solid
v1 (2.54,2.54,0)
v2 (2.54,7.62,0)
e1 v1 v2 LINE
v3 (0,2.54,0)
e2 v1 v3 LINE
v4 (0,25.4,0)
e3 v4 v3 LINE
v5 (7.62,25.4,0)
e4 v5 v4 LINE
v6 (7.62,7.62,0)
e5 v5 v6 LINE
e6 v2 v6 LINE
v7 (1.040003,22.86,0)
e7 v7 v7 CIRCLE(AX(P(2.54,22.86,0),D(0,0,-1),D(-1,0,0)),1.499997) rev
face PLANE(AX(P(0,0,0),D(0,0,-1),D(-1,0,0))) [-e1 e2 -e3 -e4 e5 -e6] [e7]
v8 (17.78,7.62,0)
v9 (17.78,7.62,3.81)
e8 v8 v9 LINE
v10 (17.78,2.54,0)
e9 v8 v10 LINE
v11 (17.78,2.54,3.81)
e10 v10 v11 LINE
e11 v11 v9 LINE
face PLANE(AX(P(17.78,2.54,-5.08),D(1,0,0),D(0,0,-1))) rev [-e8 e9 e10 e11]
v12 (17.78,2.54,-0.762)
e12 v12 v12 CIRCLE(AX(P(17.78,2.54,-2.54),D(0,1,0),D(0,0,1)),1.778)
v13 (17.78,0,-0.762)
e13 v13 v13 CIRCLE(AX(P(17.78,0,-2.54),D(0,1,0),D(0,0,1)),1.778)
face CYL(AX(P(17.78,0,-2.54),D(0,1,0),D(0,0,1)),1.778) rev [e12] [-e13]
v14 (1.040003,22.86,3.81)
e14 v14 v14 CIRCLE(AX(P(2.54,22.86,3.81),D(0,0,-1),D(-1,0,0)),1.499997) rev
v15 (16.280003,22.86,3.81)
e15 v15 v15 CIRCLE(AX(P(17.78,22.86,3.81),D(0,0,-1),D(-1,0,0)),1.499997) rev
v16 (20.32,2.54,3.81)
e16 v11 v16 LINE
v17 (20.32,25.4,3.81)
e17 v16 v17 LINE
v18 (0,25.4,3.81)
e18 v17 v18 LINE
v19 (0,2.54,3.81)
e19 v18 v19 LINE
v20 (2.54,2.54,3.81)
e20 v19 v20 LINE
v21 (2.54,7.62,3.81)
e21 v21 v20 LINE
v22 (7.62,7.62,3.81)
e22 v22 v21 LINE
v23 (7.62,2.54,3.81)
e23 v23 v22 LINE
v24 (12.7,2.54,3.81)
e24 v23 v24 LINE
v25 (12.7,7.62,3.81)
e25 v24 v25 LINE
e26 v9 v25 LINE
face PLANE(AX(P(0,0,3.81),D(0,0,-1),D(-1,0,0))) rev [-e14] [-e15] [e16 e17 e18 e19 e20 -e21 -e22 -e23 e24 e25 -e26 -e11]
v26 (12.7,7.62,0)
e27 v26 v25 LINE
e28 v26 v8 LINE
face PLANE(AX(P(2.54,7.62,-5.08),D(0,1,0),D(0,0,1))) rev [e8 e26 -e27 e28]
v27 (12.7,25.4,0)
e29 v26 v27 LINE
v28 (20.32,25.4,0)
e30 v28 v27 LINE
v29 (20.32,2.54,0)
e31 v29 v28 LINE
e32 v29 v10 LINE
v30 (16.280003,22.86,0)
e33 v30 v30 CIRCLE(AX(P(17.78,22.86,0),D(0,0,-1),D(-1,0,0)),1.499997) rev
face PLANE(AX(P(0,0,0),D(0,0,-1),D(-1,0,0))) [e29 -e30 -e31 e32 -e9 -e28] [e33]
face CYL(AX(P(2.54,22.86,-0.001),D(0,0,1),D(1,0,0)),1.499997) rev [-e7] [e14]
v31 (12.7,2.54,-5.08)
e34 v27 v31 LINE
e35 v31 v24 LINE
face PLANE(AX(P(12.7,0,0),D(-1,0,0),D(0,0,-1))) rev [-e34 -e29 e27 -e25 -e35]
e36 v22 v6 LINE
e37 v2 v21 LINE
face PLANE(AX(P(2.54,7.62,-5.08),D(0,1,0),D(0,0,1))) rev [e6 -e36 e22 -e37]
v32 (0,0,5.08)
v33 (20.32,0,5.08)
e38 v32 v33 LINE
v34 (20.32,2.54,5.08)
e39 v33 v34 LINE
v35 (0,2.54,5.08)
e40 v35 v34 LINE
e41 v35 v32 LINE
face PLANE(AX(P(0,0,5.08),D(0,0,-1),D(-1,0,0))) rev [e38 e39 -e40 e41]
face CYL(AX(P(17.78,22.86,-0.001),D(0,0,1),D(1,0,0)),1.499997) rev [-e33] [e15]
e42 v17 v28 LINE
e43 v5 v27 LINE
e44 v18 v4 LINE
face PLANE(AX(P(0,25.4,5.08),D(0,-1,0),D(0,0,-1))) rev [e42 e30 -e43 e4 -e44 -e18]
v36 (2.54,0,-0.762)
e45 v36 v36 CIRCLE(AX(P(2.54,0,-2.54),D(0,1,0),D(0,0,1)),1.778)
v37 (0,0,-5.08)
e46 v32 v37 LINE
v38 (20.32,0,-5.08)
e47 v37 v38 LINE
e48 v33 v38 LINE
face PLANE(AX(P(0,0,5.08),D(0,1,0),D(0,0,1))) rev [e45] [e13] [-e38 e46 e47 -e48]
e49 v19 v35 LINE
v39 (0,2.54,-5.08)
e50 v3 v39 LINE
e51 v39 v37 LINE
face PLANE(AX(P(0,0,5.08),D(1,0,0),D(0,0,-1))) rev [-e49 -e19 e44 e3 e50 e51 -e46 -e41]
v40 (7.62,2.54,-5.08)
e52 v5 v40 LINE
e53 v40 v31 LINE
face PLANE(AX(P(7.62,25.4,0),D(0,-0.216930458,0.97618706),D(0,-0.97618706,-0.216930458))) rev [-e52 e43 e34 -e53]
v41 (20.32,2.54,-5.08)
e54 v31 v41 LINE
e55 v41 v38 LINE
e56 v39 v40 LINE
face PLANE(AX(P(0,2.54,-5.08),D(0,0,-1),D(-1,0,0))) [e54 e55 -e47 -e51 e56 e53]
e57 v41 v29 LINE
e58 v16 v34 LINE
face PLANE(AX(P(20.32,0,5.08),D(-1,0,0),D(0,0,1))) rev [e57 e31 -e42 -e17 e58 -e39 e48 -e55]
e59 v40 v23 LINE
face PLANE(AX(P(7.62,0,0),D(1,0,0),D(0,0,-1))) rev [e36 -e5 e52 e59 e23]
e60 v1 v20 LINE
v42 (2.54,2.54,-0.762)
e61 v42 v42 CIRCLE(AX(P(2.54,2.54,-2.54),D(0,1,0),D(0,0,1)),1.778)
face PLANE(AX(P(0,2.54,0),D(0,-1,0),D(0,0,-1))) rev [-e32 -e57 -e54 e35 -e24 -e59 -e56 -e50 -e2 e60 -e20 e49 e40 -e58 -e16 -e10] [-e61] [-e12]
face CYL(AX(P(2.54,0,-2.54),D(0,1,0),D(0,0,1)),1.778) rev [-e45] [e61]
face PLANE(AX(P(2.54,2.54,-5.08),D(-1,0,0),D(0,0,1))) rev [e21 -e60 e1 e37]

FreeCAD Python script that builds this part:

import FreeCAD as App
import Part
import Sketcher
Q = App.Units.Quantity

doc = App.newDocument("Part")
body = doc.addObject("PartDesign::Body", "Body")

sketch1 = doc.addObject("Sketcher::SketchObject", "Sketch")
body.addObject(sketch1)
sketch1.AttachmentSupport = (doc.XY_Plane, [""])
sketch1.MapMode = "FlatFace"
sketch1.addGeometry(Part.LineSegment(App.Vector(0, 25, 0), App.Vector(0, 0, 0)), False)
sketch1.addGeometry(Part.LineSegment(App.Vector(0, 0, 0), App.Vector(20, 0, 0)), False)
sketch1.addGeometry(Part.LineSegment(App.Vector(20, 0, 0), App.Vector(20, 25, 0)), False)
sketch1.addGeometry(Part.LineSegment(App.Vector(20, 25, 0), App.Vector(0, 25, 0)), False)
sketch1.addConstraint(Sketcher.Constraint("Coincident", 0, 2, 1, 1))
sketch1.addConstraint(Sketcher.Constraint("Coincident", 1, 2, 2, 1))
sketch1.addConstraint(Sketcher.Constraint("Coincident", 2, 2, 3, 1))
sketch1.addConstraint(Sketcher.Constraint("Coincident", 3, 2, 0, 1))
sketch1.addConstraint(Sketcher.Constraint("Vertical", 0))
sketch1.addConstraint(Sketcher.Constraint("Horizontal", 1))
sketch1.addConstraint(Sketcher.Constraint("Vertical", 2))
sketch1.addConstraint(Sketcher.Constraint("Horizontal", 3))
sketch1.addConstraint(Sketcher.Constraint("Coincident", 0, 2, -1, 1))
sketch1.addConstraint(Sketcher.Constraint("DistanceY", 0, 2, 0, 1, Q("1 in")))
sketch1.addConstraint(Sketcher.Constraint("DistanceX", 1, 1, 1, 2, Q("0.8 in")))
pad1 = doc.addObject("PartDesign::Pad", "Pad")
body.addObject(pad1)
pad1.Profile = sketch1
pad1.Length = Q("0.2 in")

sketch2 = doc.addObject("Sketcher::SketchObject", "Sketch001")
body.addObject(sketch2)
sketch2.AttachmentSupport = (doc.XY_Plane, [""])
sketch2.MapMode = "FlatFace"
sketch2.AttachmentOffset = App.Placement(App.Vector(0, 0, 0.2 * 25.4), App.Rotation())
sketch2.addGeometry(Part.Circle(App.Vector(2.5, 22.9, 0), App.Vector(0, 0, 1), 1.5), False)
sketch2.addConstraint(Sketcher.Constraint("DistanceX", -1, 1, 0, 3, Q("0.1 in")))
sketch2.addConstraint(Sketcher.Constraint("DistanceY", -1, 1, 0, 3, Q("0.9 in")))
sketch2.addConstraint(Sketcher.Constraint("Diameter", 0, 2.999994))
pocket1 = doc.addObject("PartDesign::Pocket", "Pocket")
body.addObject(pocket1)
pocket1.Profile = sketch2
pocket1.Type = "UpToFirst"

sketch3 = doc.addObject("Sketcher::SketchObject", "Sketch002")
body.addObject(sketch3)
sketch3.AttachmentSupport = (doc.XY_Plane, [""])
sketch3.MapMode = "FlatFace"
sketch3.AttachmentOffset = App.Placement(App.Vector(0, 0, 0.2 * 25.4), App.Rotation())
sketch3.addGeometry(Part.Circle(App.Vector(17.8, 22.9, 0), App.Vector(0, 0, 1), 1.5), False)
sketch3.addConstraint(Sketcher.Constraint("DistanceX", -1, 1, 0, 3, Q("0.7 in")))
sketch3.addConstraint(Sketcher.Constraint("DistanceY", -1, 1, 0, 3, Q("0.9 in")))
sketch3.addConstraint(Sketcher.Constraint("Diameter", 0, 2.999994))
pocket2 = doc.addObject("PartDesign::Pocket", "Pocket001")
body.addObject(pocket2)
pocket2.Profile = sketch3
pocket2.Type = "UpToFirst"

sketch4 = doc.addObject("Sketcher::SketchObject", "Sketch003")
body.addObject(sketch4)
sketch4.AttachmentSupport = (doc.XZ_Plane, [""])
sketch4.MapMode = "FlatFace"
sketch4.addGeometry(Part.LineSegment(App.Vector(0, 5, 0), App.Vector(0, -5, 0)), False)
sketch4.addGeometry(Part.LineSegment(App.Vector(0, -5, 0), App.Vector(20, -5, 0)), False)
sketch4.addGeometry(Part.LineSegment(App.Vector(20, -5, 0), App.Vector(20, 5, 0)), False)
sketch4.addGeometry(Part.LineSegment(App.Vector(20, 5, 0), App.Vector(0, 5, 0)), False)
sketch4.addConstraint(Sketcher.Constraint("Coincident", 0, 2, 1, 1))
sketch4.addConstraint(Sketcher.Constraint("Coincident", 1, 2, 2, 1))
sketch4.addConstraint(Sketcher.Constraint("Coincident", 2, 2, 3, 1))
sketch4.addConstraint(Sketcher.Constraint("Coincident", 3, 2, 0, 1))
sketch4.addConstraint(Sketcher.Constraint("Vertical", 0))
sketch4.addConstraint(Sketcher.Constraint("Horizontal", 1))
sketch4.addConstraint(Sketcher.Constraint("Vertical", 2))
sketch4.addConstraint(Sketcher.Constraint("Horizontal", 3))
sketch4.addConstraint(Sketcher.Constraint("Symmetric", 0, 2, 3, 2, -1, 1))
sketch4.addConstraint(Sketcher.Constraint("DistanceX", 1, 1, 1, 2, Q("0.8 in")))
sketch4.addConstraint(Sketcher.Constraint("DistanceY", 0, 2, 0, 1, Q("0.4 in")))
pad2 = doc.addObject("PartDesign::Pad", "Pad001")
body.addObject(pad2)
pad2.Profile = sketch4
pad2.Length = Q("0.1 in")
pad2.Reversed = True

sketch5 = doc.addObject("Sketcher::SketchObject", "Sketch004")
body.addObject(sketch5)
sketch5.AttachmentSupport = (doc.XY_Plane, [""])
sketch5.MapMode = "FlatFace"
sketch5.AttachmentOffset = App.Placement(App.Vector(0, 0, 0.2 * 25.4), App.Rotation())
sketch5.addGeometry(Part.LineSegment(App.Vector(0, 25, 0), App.Vector(0, 3, 0)), False)
sketch5.addGeometry(Part.LineSegment(App.Vector(0, 3, 0), App.Vector(20, 3, 0)), False)
sketch5.addGeometry(Part.LineSegment(App.Vector(20, 3, 0), App.Vector(20, 25, 0)), False)
sketch5.addGeometry(Part.LineSegment(App.Vector(20, 25, 0), App.Vector(0, 25, 0)), False)
sketch5.addConstraint(Sketcher.Constraint("Coincident", 0, 2, 1, 1))
sketch5.addConstraint(Sketcher.Constraint("Coincident", 1, 2, 2, 1))
sketch5.addConstraint(Sketcher.Constraint("Coincident", 2, 2, 3, 1))
sketch5.addConstraint(Sketcher.Constraint("Coincident", 3, 2, 0, 1))
sketch5.addConstraint(Sketcher.Constraint("Vertical", 0))
sketch5.addConstraint(Sketcher.Constraint("Horizontal", 1))
sketch5.addConstraint(Sketcher.Constraint("Vertical", 2))
sketch5.addConstraint(Sketcher.Constraint("Horizontal", 3))
sketch5.addConstraint(Sketcher.Constraint("PointOnObject", 0, 2, -2))
sketch5.addConstraint(Sketcher.Constraint("DistanceX", 1, 1, 1, 2, Q("0.8 in")))
sketch5.addConstraint(Sketcher.Constraint("DistanceY", 0, 2, 0, 1, Q("0.9 in")))
sketch5.addConstraint(Sketcher.Constraint("DistanceY", -1, 1, 2, 2, Q("1 in")))
pocket3 = doc.addObject("PartDesign::Pocket", "Pocket002")
body.addObject(pocket3)
pocket3.Profile = sketch5
pocket3.Length = Q("0.05 in")

sketch6 = doc.addObject("Sketcher::SketchObject", "Sketch005")
body.addObject(sketch6)
sketch6.AttachmentSupport = (doc.XZ_Plane, [""])
sketch6.MapMode = "FlatFace"
sketch6.AttachmentOffset = App.Placement(App.Vector(0, 0, -0.1 * 25.4), App.Rotation())
sketch6.addGeometry(Part.Circle(App.Vector(17.8, -2.5, 0), App.Vector(0, 0, 1), 1.8), False)
sketch6.addGeometry(Part.Circle(App.Vector(2.5, -2.5, 0), App.Vector(0, 0, 1), 1.8), False)
sketch6.addConstraint(Sketcher.Constraint("Equal", 0, 1))
sketch6.addConstraint(Sketcher.Constraint("Horizontal", 0, 3, 1, 3))
sketch6.addConstraint(Sketcher.Constraint("Diameter", 0, Q("0.14 in")))
sketch6.addConstraint(Sketcher.Constraint("DistanceX", -1, 1, 0, 3, Q("0.7 in")))
sketch6.addConstraint(Sketcher.Constraint("DistanceY", 0, 3, -1, 1, Q("0.1 in")))
sketch6.addConstraint(Sketcher.Constraint("DistanceX", -1, 1, 1, 3, Q("0.1 in")))
pocket4 = doc.addObject("PartDesign::Pocket", "Pocket003")
body.addObject(pocket4)
pocket4.Profile = sketch6
pocket4.Length = Q("0.1 in")
pocket4.Reversed = True

sketch7 = doc.addObject("Sketcher::SketchObject", "Sketch006")
body.addObject(sketch7)
sketch7.AttachmentSupport = (doc.XY_Plane, [""])
sketch7.MapMode = "FlatFace"
sketch7.AttachmentOffset = App.Placement(App.Vector(0, 0, 0.15 * 25.4), App.Rotation())
sketch7.addGeometry(Part.LineSegment(App.Vector(3, 8, 0), App.Vector(3, 3, 0)), False)
sketch7.addGeometry(Part.LineSegment(App.Vector(3, 3, 0), App.Vector(18, 3, 0)), False)
sketch7.addGeometry(Part.LineSegment(App.Vector(18, 3, 0), App.Vector(18, 8, 0)), False)
sketch7.addGeometry(Part.LineSegment(App.Vector(18, 8, 0), App.Vector(3, 8, 0)), False)
sketch7.addConstraint(Sketcher.Constraint("Coincident", 0, 2, 1, 1))
sketch7.addConstraint(Sketcher.Constraint("Coincident", 1, 2, 2, 1))
sketch7.addConstraint(Sketcher.Constraint("Coincident", 2, 2, 3, 1))
sketch7.addConstraint(Sketcher.Constraint("Coincident", 3, 2, 0, 1))
sketch7.addConstraint(Sketcher.Constraint("Vertical", 0))
sketch7.addConstraint(Sketcher.Constraint("Horizontal", 1))
sketch7.addConstraint(Sketcher.Constraint("Vertical", 2))
sketch7.addConstraint(Sketcher.Constraint("Horizontal", 3))
sketch7.addConstraint(Sketcher.Constraint("DistanceX", 1, 1, 1, 2, Q("0.6 in")))
sketch7.addConstraint(Sketcher.Constraint("DistanceY", 0, 2, 0, 1, Q("0.2 in")))
sketch7.addConstraint(Sketcher.Constraint("DistanceX", -1, 1, 0, 2, Q("0.1 in")))
sketch7.addConstraint(Sketcher.Constraint("DistanceY", -1, 1, 0, 2, Q("0.1 in")))
pocket5 = doc.addObject("PartDesign::Pocket", "Pocket004")
body.addObject(pocket5)
pocket5.Profile = sketch7
pocket5.Type = "ThroughAll"

sketch8 = doc.addObject("Sketcher::SketchObject", "Sketch007")
body.addObject(sketch8)
sketch8.AttachmentSupport = (doc.YZ_Plane, [""])
sketch8.MapMode = "FlatFace"
sketch8.AttachmentOffset = App.Placement(App.Vector(0, 0, 0.4 * 25.4), App.Rotation())
sketch8.addGeometry(Part.LineSegment(App.Vector(25.4, 0, 0), App.Vector(2.5, -5.1, 0)), False)
sketch8.addGeometry(Part.LineSegment(App.Vector(2.5, -5.1, 0), App.Vector(2.5, 3.8, 0)), False)
sketch8.addGeometry(Part.LineSegment(App.Vector(2.5, 3.8, 0), App.Vector(25.4, 3.8, 0)), False)
sketch8.addGeometry(Part.LineSegment(App.Vector(25.4, 3.8, 0), App.Vector(25.4, 0, 0)), False)
sketch8.addConstraint(Sketcher.Constraint("Coincident", 0, 2, 1, 1))
sketch8.addConstraint(Sketcher.Constraint("Coincident", 1, 2, 2, 1))
sketch8.addConstraint(Sketcher.Constraint("Coincident", 2, 2, 3, 1))
sketch8.addConstraint(Sketcher.Constraint("Coincident", 3, 2, 0, 1))
sketch8.addConstraint(Sketcher.Constraint("Vertical", 1))
sketch8.addConstraint(Sketcher.Constraint("Horizontal", 2))
sketch8.addConstraint(Sketcher.Constraint("Vertical", 3))
sketch8.addConstraint(Sketcher.Constraint("PointOnObject", 3, 2, -1))
sketch8.addConstraint(Sketcher.Constraint("DistanceX", 2, 1, 2, 2, Q("0.9 in")))
sketch8.addConstraint(Sketcher.Constraint("DistanceX", -1, 1, 2, 2, Q("1 in")))
sketch8.addConstraint(Sketcher.Constraint("DistanceY", 1, 1, 1, 2, Q("0.35 in")))
sketch8.addConstraint(Sketcher.Constraint("DistanceY", 3, 2, 3, 1, Q("0.15 in")))
pad3 = doc.addObject("PartDesign::Pad", "Pad002")
body.addObject(pad3)
pad3.Profile = sketch8
pad3.Length = Q("0.1 in")
pad3.Reversed = True
doc.recompute()

datumplane = doc.addObject("PartDesign::Plane", "DatumPlane")
body.addObject(datumplane)
datumplane.AttachmentSupport = (doc.YZ_Plane, [""])
datumplane.MapMode = "FlatFace"
datumplane.AttachmentOffset = App.Placement(App.Vector(0, 0, 0.4 * 25.4), App.Rotation())
mirrored = doc.addObject("PartDesign::Mirrored", "Mirrored")
body.addObject(mirrored)
mirrored.Originals = [pad3]
mirrored.MirrorPlane = (datumplane, [""])
body.Tip = mirrored

doc.recompute()
